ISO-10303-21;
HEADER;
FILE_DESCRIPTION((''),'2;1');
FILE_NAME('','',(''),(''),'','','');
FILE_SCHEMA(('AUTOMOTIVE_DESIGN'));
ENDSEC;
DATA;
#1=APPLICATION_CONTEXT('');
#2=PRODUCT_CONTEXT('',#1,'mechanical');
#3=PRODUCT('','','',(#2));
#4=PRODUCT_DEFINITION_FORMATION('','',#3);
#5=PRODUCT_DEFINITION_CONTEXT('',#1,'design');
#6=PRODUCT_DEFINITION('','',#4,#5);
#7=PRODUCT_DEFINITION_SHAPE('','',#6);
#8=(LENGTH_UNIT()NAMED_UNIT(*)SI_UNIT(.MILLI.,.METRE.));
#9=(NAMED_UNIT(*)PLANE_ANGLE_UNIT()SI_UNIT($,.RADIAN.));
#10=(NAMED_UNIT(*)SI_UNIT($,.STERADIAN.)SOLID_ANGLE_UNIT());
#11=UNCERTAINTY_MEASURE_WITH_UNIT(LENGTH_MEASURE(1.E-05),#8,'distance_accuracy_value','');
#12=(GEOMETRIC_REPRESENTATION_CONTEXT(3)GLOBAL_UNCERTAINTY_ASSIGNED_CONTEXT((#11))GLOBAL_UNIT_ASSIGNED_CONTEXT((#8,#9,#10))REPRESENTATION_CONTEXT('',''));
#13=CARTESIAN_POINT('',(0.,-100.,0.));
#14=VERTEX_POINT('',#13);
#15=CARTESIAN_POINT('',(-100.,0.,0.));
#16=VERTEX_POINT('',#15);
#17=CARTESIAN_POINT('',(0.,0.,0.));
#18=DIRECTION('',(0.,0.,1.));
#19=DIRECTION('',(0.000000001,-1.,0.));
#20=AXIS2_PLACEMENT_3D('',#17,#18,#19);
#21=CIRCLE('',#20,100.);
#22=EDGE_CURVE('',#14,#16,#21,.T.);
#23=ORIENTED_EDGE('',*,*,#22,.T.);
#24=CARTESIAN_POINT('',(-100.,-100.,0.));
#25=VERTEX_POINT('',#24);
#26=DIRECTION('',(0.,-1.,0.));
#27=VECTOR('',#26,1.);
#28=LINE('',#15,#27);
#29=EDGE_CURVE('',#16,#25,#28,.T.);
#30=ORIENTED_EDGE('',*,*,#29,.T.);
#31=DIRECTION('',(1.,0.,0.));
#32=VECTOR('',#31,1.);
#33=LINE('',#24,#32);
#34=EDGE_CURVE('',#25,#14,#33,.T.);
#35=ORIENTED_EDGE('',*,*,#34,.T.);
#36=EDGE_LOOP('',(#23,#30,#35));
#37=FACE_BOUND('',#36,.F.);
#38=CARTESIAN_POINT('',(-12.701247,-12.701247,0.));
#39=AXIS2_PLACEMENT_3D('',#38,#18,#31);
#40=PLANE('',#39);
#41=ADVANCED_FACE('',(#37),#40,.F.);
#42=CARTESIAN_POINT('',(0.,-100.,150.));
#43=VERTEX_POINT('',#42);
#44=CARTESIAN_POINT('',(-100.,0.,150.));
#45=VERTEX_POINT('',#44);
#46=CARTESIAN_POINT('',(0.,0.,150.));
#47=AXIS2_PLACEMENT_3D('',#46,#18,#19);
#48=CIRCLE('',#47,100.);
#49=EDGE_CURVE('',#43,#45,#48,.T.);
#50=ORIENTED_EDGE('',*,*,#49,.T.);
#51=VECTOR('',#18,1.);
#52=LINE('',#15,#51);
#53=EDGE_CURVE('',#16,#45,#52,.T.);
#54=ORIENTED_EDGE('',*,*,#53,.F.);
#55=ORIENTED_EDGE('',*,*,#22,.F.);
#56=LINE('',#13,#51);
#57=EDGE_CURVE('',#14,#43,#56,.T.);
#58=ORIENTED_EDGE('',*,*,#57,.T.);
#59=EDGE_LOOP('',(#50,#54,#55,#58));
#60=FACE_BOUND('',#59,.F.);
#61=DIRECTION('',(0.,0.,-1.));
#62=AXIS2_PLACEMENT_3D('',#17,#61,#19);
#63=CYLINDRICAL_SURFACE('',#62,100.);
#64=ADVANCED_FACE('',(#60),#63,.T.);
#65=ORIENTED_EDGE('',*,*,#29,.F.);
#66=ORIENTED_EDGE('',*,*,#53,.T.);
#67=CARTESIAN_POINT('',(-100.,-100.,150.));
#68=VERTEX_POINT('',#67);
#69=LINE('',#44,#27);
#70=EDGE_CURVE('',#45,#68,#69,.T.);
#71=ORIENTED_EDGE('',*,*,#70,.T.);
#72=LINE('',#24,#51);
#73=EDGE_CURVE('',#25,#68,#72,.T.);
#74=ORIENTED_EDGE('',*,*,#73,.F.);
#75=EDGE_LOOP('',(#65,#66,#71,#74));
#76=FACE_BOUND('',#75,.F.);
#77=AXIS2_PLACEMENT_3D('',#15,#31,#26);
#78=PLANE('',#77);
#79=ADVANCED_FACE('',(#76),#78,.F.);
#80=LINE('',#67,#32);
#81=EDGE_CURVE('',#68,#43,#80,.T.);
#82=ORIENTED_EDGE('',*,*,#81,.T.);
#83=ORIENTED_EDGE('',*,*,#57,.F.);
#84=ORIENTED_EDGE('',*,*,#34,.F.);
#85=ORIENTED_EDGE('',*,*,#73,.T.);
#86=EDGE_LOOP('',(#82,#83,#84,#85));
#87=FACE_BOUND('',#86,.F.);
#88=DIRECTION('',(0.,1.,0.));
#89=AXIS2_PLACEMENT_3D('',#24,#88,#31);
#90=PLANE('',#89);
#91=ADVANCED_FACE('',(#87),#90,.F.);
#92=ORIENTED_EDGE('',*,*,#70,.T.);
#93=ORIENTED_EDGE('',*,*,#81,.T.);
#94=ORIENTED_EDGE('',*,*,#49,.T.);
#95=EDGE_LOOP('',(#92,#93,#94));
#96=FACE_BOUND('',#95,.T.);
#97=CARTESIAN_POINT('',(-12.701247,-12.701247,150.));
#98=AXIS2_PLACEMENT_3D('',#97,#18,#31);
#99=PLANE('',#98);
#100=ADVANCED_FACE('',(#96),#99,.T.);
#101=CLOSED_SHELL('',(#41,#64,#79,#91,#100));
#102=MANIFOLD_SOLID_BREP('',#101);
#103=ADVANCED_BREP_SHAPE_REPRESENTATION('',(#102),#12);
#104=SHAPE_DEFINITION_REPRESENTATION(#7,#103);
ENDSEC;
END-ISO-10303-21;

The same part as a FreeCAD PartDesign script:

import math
import FreeCAD as App
import Part
import Sketcher
from FreeCAD import Vector

doc = App.newDocument("Part")
body = doc.addObject("PartDesign::Body", "Body")

sketch1 = doc.addObject("Sketcher::SketchObject", "Sketch")
body.addObject(sketch1)
sketch1.AttachmentSupport = (doc.XY_Plane, [""])
sketch1.MapMode = "FlatFace"
sketch1.addGeometry([
    Part.ArcOfCircle(Part.Circle(Vector(0, 0, 0), Vector(0, 0, 1), 100), math.radians(-90), math.radians(180)),
    Part.LineSegment(Vector(-100, 0, 0), Vector(-100, -100, 0)),
    Part.LineSegment(Vector(-100, -100, 0), Vector(0, -100, 0)),
], False)
sketch1.addConstraint([
    Sketcher.Constraint("Tangent", 0, 2, 1, 1),
    Sketcher.Constraint("Coincident", 1, 2, 2, 1),
    Sketcher.Constraint("Tangent", 2, 2, 0, 1),
    Sketcher.Constraint("Vertical", 1),
    Sketcher.Constraint("Horizontal", 2),
    Sketcher.Constraint("Coincident", 0, 3, -1, 1),
    Sketcher.Constraint("Radius", 0, 100.0),
])
pad1 = doc.addObject("PartDesign::Pad", "Pad")
body.addObject(pad1)
pad1.Profile = sketch1
pad1.Length = 150

doc.recompute()
